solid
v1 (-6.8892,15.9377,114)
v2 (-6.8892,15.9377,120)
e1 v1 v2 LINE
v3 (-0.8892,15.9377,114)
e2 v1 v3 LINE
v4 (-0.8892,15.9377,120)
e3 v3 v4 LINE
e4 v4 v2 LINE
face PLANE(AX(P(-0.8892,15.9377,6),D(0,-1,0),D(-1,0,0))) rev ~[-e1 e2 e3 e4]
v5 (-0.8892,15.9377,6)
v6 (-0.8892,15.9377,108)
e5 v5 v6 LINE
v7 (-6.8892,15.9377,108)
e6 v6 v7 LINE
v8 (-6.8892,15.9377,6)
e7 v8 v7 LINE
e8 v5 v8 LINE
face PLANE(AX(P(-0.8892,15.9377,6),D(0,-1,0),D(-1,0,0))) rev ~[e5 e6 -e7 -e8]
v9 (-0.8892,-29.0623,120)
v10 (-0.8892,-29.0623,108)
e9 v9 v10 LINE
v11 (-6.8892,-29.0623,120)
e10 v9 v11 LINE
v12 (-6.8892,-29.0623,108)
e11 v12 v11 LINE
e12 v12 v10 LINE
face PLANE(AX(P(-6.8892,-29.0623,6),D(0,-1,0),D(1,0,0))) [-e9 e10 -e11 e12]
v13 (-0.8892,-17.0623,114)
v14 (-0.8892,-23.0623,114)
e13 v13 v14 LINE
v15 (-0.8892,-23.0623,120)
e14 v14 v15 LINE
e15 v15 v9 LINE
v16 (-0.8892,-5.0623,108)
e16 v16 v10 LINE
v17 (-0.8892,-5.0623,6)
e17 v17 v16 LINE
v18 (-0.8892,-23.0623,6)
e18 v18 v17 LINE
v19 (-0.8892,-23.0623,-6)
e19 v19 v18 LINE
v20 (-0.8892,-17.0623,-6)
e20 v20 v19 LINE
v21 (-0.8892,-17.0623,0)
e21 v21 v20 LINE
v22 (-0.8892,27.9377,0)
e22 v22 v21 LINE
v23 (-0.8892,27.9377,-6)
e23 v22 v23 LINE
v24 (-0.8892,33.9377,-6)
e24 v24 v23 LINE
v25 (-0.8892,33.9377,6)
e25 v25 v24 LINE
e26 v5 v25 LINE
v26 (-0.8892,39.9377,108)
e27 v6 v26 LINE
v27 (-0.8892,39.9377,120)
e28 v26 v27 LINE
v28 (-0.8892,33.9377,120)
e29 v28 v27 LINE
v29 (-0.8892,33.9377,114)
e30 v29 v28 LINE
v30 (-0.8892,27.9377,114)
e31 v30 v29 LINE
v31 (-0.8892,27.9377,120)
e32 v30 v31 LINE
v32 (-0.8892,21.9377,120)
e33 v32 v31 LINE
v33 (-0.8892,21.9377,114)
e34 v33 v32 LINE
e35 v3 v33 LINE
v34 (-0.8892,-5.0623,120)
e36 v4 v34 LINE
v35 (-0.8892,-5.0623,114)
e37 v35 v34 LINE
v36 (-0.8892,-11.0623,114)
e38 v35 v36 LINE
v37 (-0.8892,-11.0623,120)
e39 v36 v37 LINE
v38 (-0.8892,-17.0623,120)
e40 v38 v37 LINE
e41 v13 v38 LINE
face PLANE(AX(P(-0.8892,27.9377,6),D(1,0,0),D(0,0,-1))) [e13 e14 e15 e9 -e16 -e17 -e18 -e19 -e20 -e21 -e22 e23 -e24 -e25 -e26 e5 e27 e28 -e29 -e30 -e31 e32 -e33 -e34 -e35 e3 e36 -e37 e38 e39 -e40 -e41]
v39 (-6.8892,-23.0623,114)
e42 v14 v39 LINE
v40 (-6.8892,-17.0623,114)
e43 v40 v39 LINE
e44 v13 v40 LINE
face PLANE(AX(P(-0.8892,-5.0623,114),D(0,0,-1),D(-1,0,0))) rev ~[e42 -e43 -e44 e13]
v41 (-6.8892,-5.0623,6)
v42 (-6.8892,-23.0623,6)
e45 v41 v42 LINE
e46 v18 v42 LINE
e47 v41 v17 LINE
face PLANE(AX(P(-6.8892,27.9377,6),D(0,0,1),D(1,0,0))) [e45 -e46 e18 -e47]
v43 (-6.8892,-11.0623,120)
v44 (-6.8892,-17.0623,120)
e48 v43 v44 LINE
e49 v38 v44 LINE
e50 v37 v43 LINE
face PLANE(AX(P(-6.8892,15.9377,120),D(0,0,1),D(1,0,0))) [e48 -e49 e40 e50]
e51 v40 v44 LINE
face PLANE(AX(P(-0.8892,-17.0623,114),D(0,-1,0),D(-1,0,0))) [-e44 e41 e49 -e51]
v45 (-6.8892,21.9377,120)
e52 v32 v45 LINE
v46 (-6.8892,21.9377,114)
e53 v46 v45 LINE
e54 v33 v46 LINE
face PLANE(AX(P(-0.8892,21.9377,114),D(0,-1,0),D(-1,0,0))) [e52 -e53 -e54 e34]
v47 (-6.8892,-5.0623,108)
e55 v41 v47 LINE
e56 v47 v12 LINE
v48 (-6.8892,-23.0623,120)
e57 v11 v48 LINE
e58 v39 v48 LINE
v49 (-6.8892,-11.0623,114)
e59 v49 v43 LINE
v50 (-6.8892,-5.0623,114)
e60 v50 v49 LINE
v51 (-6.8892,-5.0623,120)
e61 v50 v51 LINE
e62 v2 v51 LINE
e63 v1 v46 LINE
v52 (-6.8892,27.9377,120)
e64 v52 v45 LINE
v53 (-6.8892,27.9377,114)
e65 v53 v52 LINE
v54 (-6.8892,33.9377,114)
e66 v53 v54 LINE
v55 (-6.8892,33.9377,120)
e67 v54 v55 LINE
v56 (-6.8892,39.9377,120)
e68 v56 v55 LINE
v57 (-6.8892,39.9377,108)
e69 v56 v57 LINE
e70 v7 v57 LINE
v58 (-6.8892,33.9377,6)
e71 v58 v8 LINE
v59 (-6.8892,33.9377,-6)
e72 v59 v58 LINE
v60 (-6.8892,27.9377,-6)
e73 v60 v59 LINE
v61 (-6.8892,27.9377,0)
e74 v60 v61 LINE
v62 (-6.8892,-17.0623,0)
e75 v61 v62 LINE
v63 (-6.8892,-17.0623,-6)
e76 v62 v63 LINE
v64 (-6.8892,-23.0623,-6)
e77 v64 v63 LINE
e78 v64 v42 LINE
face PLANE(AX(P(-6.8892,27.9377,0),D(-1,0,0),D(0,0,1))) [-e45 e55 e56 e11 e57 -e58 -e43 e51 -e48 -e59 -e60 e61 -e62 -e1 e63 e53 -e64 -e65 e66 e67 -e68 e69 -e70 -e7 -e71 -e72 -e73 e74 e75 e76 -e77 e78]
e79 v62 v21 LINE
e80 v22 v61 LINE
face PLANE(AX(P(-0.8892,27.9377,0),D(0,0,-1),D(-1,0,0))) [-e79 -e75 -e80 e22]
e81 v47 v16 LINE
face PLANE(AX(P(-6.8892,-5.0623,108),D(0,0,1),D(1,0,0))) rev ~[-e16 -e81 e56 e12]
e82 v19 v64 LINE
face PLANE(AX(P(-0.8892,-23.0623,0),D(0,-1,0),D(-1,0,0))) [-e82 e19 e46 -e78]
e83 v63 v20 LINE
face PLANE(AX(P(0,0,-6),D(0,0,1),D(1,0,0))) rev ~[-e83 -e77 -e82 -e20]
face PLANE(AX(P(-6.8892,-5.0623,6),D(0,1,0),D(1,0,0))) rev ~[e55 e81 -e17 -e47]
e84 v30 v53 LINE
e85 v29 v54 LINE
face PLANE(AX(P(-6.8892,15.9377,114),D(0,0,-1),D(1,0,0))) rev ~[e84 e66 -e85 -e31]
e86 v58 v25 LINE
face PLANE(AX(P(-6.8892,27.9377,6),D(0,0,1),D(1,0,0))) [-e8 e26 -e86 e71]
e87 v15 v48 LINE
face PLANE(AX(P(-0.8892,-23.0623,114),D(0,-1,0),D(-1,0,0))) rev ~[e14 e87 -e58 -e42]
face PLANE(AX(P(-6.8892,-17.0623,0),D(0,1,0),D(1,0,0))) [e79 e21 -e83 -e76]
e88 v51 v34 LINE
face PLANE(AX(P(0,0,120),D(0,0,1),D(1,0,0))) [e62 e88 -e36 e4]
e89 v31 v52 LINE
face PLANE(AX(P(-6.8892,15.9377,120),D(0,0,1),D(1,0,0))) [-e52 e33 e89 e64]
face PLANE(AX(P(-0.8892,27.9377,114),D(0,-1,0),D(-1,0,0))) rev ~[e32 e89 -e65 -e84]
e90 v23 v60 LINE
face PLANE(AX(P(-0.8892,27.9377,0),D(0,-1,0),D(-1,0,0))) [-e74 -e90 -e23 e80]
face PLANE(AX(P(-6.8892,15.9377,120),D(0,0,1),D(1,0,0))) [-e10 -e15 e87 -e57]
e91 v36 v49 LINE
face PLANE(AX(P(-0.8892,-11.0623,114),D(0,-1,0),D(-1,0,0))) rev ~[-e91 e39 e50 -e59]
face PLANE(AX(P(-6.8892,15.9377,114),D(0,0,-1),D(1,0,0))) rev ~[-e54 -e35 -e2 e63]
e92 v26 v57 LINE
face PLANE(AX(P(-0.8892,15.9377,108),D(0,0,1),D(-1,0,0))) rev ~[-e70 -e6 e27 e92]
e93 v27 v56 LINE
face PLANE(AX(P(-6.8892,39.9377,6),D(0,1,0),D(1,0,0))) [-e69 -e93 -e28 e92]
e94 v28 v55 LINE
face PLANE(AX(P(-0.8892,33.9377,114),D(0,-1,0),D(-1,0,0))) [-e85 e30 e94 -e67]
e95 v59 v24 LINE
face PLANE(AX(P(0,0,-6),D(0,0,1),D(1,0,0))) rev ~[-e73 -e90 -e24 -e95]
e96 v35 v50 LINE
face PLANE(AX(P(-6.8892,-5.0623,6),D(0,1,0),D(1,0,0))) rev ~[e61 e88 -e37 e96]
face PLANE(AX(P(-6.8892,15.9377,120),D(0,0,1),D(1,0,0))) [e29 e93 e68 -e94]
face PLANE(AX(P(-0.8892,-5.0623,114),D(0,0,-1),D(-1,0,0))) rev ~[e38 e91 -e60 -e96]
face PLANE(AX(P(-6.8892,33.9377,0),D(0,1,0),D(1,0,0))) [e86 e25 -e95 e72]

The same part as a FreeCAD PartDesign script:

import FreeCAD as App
import Part
import Sketcher

doc = App.newDocument("Part")
params = doc.addObject("Spreadsheet::Sheet", "Params")
for row, (alias, value) in enumerate([
    ("sketch1_width", "6 mm"),
    ("pad1_length", "12 mm"),
    ("sketch2_width", "6 mm"),
    ("sketch3_width", "6 mm"),
    ("sketch3_height", "21 mm"),
    ("pad3_length", "114 mm"),
    ("sketch4_width", "6 mm"),
    ("pad4_length", "24 mm"),
    ("sketch5_width", "6 mm"),
    ("pad5_length", "24 mm"),
    ("sketch6_width", "6 mm"),
    ("pad6_length", "6 mm"),
], start=1):
    params.set(f"A{row}", alias)
    params.set(f"B{row}", "=" + value)
    params.setAlias(f"B{row}", alias)

body = doc.addObject("PartDesign::Body", "Body")
body.AllowCompound = True

# Sketch on XY plane
sketch1 = body.newObject("Sketcher::SketchObject", "Sketch")
sketch1.AttachmentSupport = (doc.getObject("XY_Plane"), [""])
sketch1.MapMode = "FlatFace"
sketch1.addGeometry([
    Part.LineSegment(App.Vector(-0.8892, 33.9377, 0), App.Vector(-6.8892, 33.9377, 0)),  # 0
    Part.LineSegment(App.Vector(-6.8892, 33.9377, 0), App.Vector(-6.8892, 27.9377, 0)),  # 1
    Part.LineSegment(App.Vector(-6.8892, 27.9377, 0), App.Vector(-0.8892, 27.9377, 0)),  # 2
    Part.LineSegment(App.Vector(-0.8892, 27.9377, 0), App.Vector(-0.8892, 33.9377, 0)),  # 3
    Part.LineSegment(App.Vector(-6.8892, -17.0623, 0), App.Vector(-6.8892, -23.0623, 0)),  # 4
    Part.LineSegment(App.Vector(-6.8892, -23.0623, 0), App.Vector(-0.8892, -23.0623, 0)),  # 5
    Part.LineSegment(App.Vector(-0.8892, -23.0623, 0), App.Vector(-0.8892, -17.0623, 0)),  # 6
    Part.LineSegment(App.Vector(-0.8892, -17.0623, 0), App.Vector(-6.8892, -17.0623, 0)),  # 7
], False)
sketch1.addConstraint([
    Sketcher.Constraint("Coincident", 0, 2, 1, 1),
    Sketcher.Constraint("Coincident", 1, 2, 2, 1),
    Sketcher.Constraint("Coincident", 2, 2, 3, 1),
    Sketcher.Constraint("Coincident", 3, 2, 0, 1),
    Sketcher.Constraint("Coincident", 4, 2, 5, 1),
    Sketcher.Constraint("Coincident", 5, 2, 6, 1),
    Sketcher.Constraint("Coincident", 6, 2, 7, 1),
    Sketcher.Constraint("Coincident", 7, 2, 4, 1),
    Sketcher.Constraint("Horizontal", 0),
    Sketcher.Constraint("Vertical", 1),
    Sketcher.Constraint("Horizontal", 2),
    Sketcher.Constraint("Vertical", 3),
    Sketcher.Constraint("Vertical", 4),
    Sketcher.Constraint("Horizontal", 5),
    Sketcher.Constraint("Vertical", 6),
    Sketcher.Constraint("Horizontal", 7),
    Sketcher.Constraint("Vertical", 1, 2, 4, 2),
    Sketcher.Constraint("Vertical", 3, 2, 5, 2),
    Sketcher.Constraint("Equal", 7, 1),
    Sketcher.Constraint("Equal", 3, 4),
    Sketcher.Constraint("DistanceX", 0, 2, 0, 1, 6.0),
    Sketcher.Constraint("DistanceY", 4, 2, 1, 2, 51.0),
    Sketcher.Constraint("DistanceX", 0, 2, -1, 1, 6.8892),
    Sketcher.Constraint("DistanceY", -1, 1, 0, 2, 33.9377),
])
sketch1.setExpression("Constraints[20]", "Params.sketch1_width")
pad1 = body.newObject("PartDesign::Pad", "Pad")
pad1.Profile = sketch1
pad1.setExpression("Length", "Params.pad1_length")
pad1.Midplane = True

# Sketch on XZ plane
sketch2 = body.newObject("Sketcher::SketchObject", "Sketch001")
sketch2.AttachmentSupport = (doc.getObject("XZ_Plane"), [""])
sketch2.MapMode = "FlatFace"
sketch2.AttachmentOffset = App.Placement(App.Vector(0, 0, -27.9377), App.Rotation())
sketch2.addGeometry([
    Part.LineSegment(App.Vector(-0.8892, 6, 0), App.Vector(-6.8892, 6, 0)),
    Part.LineSegment(App.Vector(-6.8892, 6, 0), App.Vector(-6.8892, 0, 0)),
    Part.LineSegment(App.Vector(-6.8892, 0, 0), App.Vector(-0.8892, 0, 0)),
    Part.LineSegment(App.Vector(-0.8892, 0, 0), App.Vector(-0.8892, 6, 0)),
], False)
sketch2.addConstraint([
    Sketcher.Constraint("Coincident", 0, 2, 1, 1),
    Sketcher.Constraint("Coincident", 1, 2, 2, 1),
    Sketcher.Constraint("Coincident", 2, 2, 3, 1),
    Sketcher.Constraint("Coincident", 3, 2, 0, 1),
    Sketcher.Constraint("Horizontal", 0),
    Sketcher.Constraint("Vertical", 1),
    Sketcher.Constraint("Horizontal", 2),
    Sketcher.Constraint("Vertical", 3),
    Sketcher.Constraint("PointOnObject", 1, 2, -1),
    Sketcher.Constraint("Equal", 2, 1),
    Sketcher.Constraint("DistanceX", 0, 2, 0, 1, 6.0),
    Sketcher.Constraint("DistanceX", 0, 2, -1, 1, 6.8892),
])
sketch2.setExpression("Constraints[10]", "Params.sketch2_width")
pad2 = body.newObject("PartDesign::Pad", "Pad001")
pad2.Profile = sketch2
pad2.Type = "UpToFirst"

# Sketch on XY plane
sketch3 = body.newObject("Sketcher::SketchObject", "Sketch002")
sketch3.AttachmentSupport = (doc.getObject("XY_Plane"), [""])
sketch3.MapMode = "FlatFace"
sketch3.AttachmentOffset = App.Placement(App.Vector(0, 0, 6), App.Rotation())
sketch3.addGeometry([
    Part.LineSegment(App.Vector(-0.8892, 15.9377, 0), App.Vector(-6.8892, 15.9377, 0)),
    Part.LineSegment(App.Vector(-6.8892, 15.9377, 0), App.Vector(-6.8892, -5.0623, 0)),
    Part.LineSegment(App.Vector(-6.8892, -5.0623, 0), App.Vector(-0.8892, -5.0623, 0)),
    Part.LineSegment(App.Vector(-0.8892, -5.0623, 0), App.Vector(-0.8892, 15.9377, 0)),
], False)
sketch3.addConstraint([
    Sketcher.Constraint("Coincident", 0, 2, 1, 1),
    Sketcher.Constraint("Coincident", 1, 2, 2, 1),
    Sketcher.Constraint("Coincident", 2, 2, 3, 1),
    Sketcher.Constraint("Coincident", 3, 2, 0, 1),
    Sketcher.Constraint("Horizontal", 0),
    Sketcher.Constraint("Vertical", 1),
    Sketcher.Constraint("Horizontal", 2),
    Sketcher.Constraint("Vertical", 3),
    Sketcher.Constraint("DistanceX", 0, 2, 0, 1, 6.0),
    Sketcher.Constraint("DistanceY", 1, 2, 1, 1, 21.0),
    Sketcher.Constraint("DistanceX", 0, 2, -1, 1, 6.8892),
    Sketcher.Constraint("DistanceY", -1, 1, 0, 2, 15.9377),
])
sketch3.setExpression("Constraints[8]", "Params.sketch3_width")
sketch3.setExpression("Constraints[9]", "Params.sketch3_height")
pad3 = body.newObject("PartDesign::Pad", "Pad002")
pad3.Profile = sketch3
pad3.setExpression("Length", "Params.pad3_length")

# Sketch on XZ plane
sketch4 = body.newObject("Sketcher::SketchObject", "Sketch003")
sketch4.AttachmentSupport = (doc.getObject("XZ_Plane"), [""])
sketch4.MapMode = "FlatFace"
sketch4.AttachmentOffset = App.Placement(App.Vector(0, 0, 5.0623), App.Rotation())
sketch4.addGeometry([
    Part.LineSegment(App.Vector(-6.8892, 108, 0), App.Vector(-0.8892, 108, 0)),
    Part.LineSegment(App.Vector(-0.8892, 108, 0), App.Vector(-0.8892, 114, 0)),
    Part.LineSegment(App.Vector(-0.8892, 114, 0), App.Vector(-6.8892, 114, 0)),
    Part.LineSegment(App.Vector(-6.8892, 114, 0), App.Vector(-6.8892, 108, 0)),
], False)
sketch4.addConstraint([
    Sketcher.Constraint("Coincident", 0, 2, 1, 1),
    Sketcher.Constraint("Coincident", 1, 2, 2, 1),
    Sketcher.Constraint("Coincident", 2, 2, 3, 1),
    Sketcher.Constraint("Coincident", 3, 2, 0, 1),
    Sketcher.Constraint("Horizontal", 0),
    Sketcher.Constraint("Vertical", 1),
    Sketcher.Constraint("Horizontal", 2),
    Sketcher.Constraint("Vertical", 3),
    Sketcher.Constraint("Equal", 2, 1),
    Sketcher.Constraint("DistanceX", 0, 1, 0, 2, 6.0),
    Sketcher.Constraint("DistanceY", -1, 1, 0, 2, 108.0),
    Sketcher.Constraint("DistanceX", 0, 2, -1, 1, 0.8892),
])
sketch4.setExpression("Constraints[9]", "Params.sketch4_width")
pad4 = body.newObject("PartDesign::Pad", "Pad003")
pad4.Profile = sketch4
pad4.setExpression("Length", "Params.pad4_length")

# Sketch on XZ plane
sketch5 = body.newObject("Sketcher::SketchObject", "Sketch004")
sketch5.AttachmentSupport = (doc.getObject("XZ_Plane"), [""])
sketch5.MapMode = "FlatFace"
sketch5.AttachmentOffset = App.Placement(App.Vector(0, 0, -15.9377), App.Rotation())
sketch5.addGeometry([
    Part.LineSegment(App.Vector(-0.8892, 108, 0), App.Vector(-6.8892, 108, 0)),
    Part.LineSegment(App.Vector(-6.8892, 108, 0), App.Vector(-6.8892, 114, 0)),
    Part.LineSegment(App.Vector(-6.8892, 114, 0), App.Vector(-0.8892, 114, 0)),
    Part.LineSegment(App.Vector(-0.8892, 114, 0), App.Vector(-0.8892, 108, 0)),
], False)
sketch5.addConstraint([
    Sketcher.Constraint("Coincident", 0, 2, 1, 1),
    Sketcher.Constraint("Coincident", 1, 2, 2, 1),
    Sketcher.Constraint("Coincident", 2, 2, 3, 1),
    Sketcher.Constraint("Coincident", 3, 2, 0, 1),
    Sketcher.Constraint("Horizontal", 0),
    Sketcher.Constraint("Vertical", 1),
    Sketcher.Constraint("Horizontal", 2),
    Sketcher.Constraint("Vertical", 3),
    Sketcher.Constraint("Equal", 2, 1),
    Sketcher.Constraint("DistanceX", 0, 2, 0, 1, 6.0),
    Sketcher.Constraint("DistanceY", -1, 1, 0, 2, 108.0),
    Sketcher.Constraint("DistanceX", 0, 2, -1, 1, 6.8892),
])
sketch5.setExpression("Constraints[9]", "Params.sketch5_width")
pad5 = body.newObject("PartDesign::Pad", "Pad004")
pad5.Profile = sketch5
pad5.setExpression("Length", "Params.pad5_length")
pad5.Reversed = True

# Sketch on XY plane
sketch6 = body.newObject("Sketcher::SketchObject", "Sketch005")
sketch6.AttachmentSupport = (doc.getObject("XY_Plane"), [""])
sketch6.MapMode = "FlatFace"
sketch6.AttachmentOffset = App.Placement(App.Vector(0, 0, 114), App.Rotation())
sketch6.addGeometry([
    Part.LineSegment(App.Vector(-0.8892, -11.0623, 0), App.Vector(-6.8892, -11.0623, 0)),  # 0
    Part.LineSegment(App.Vector(-6.8892, -11.0623, 0), App.Vector(-6.8892, -17.0623, 0)),  # 1
    Part.LineSegment(App.Vector(-6.8892, -17.0623, 0), App.Vector(-0.8892, -17.0623, 0)),  # 2
    Part.LineSegment(App.Vector(-0.8892, -17.0623, 0), App.Vector(-0.8892, -11.0623, 0)),  # 3
    Part.LineSegment(App.Vector(-0.8892, -23.0623, 0), App.Vector(-6.8892, -23.0623, 0)),  # 4
    Part.LineSegment(App.Vector(-6.8892, -23.0623, 0), App.Vector(-6.8892, -29.0623, 0)),  # 5
    Part.LineSegment(App.Vector(-6.8892, -29.0623, 0), App.Vector(-0.8892, -29.0623, 0)),  # 6
    Part.LineSegment(App.Vector(-0.8892, -29.0623, 0), App.Vector(-0.8892, -23.0623, 0)),  # 7
    Part.LineSegment(App.Vector(-6.8892, 39.9377, 0), App.Vector(-6.8892, 33.9377, 0)),  # 8
    Part.LineSegment(App.Vector(-6.8892, 33.9377, 0), App.Vector(-0.8892, 33.9377, 0)),  # 9
    Part.LineSegment(App.Vector(-0.8892, 33.9377, 0), App.Vector(-0.8892, 39.9377, 0)),  # 10
    Part.LineSegment(App.Vector(-0.8892, 39.9377, 0), App.Vector(-6.8892, 39.9377, 0)),  # 11
    Part.LineSegment(App.Vector(-0.8892, 27.9377, 0), App.Vector(-6.8892, 27.9377, 0)),  # 12
    Part.LineSegment(App.Vector(-6.8892, 27.9377, 0), App.Vector(-6.8892, 21.9377, 0)),  # 13
    Part.LineSegment(App.Vector(-6.8892, 21.9377, 0), App.Vector(-0.8892, 21.9377, 0)),  # 14
    Part.LineSegment(App.Vector(-0.8892, 21.9377, 0), App.Vector(-0.8892, 27.9377, 0)),  # 15
], False)
sketch6.addConstraint([
    Sketcher.Constraint("Coincident", 0, 2, 1, 1),
    Sketcher.Constraint("Coincident", 1, 2, 2, 1),
    Sketcher.Constraint("Coincident", 2, 2, 3, 1),
    Sketcher.Constraint("Coincident", 3, 2, 0, 1),
    Sketcher.Constraint("Coincident", 4, 2, 5, 1),
    Sketcher.Constraint("Coincident", 5, 2, 6, 1),
    Sketcher.Constraint("Coincident", 6, 2, 7, 1),
    Sketcher.Constraint("Coincident", 7, 2, 4, 1),
    Sketcher.Constraint("Coincident", 8, 2, 9, 1),
    Sketcher.Constraint("Coincident", 9, 2, 10, 1),
    Sketcher.Constraint("Coincident", 10, 2, 11, 1),
    Sketcher.Constraint("Coincident", 11, 2, 8, 1),
    Sketcher.Constraint("Coincident", 12, 2, 13, 1),
    Sketcher.Constraint("Coincident", 13, 2, 14, 1),
    Sketcher.Constraint("Coincident", 14, 2, 15, 1),
    Sketcher.Constraint("Coincident", 15, 2, 12, 1),
    Sketcher.Constraint("Horizontal", 0),
    Sketcher.Constraint("Vertical", 1),
    Sketcher.Constraint("Horizontal", 2),
    Sketcher.Constraint("Vertical", 3),
    Sketcher.Constraint("Horizontal", 4),
    Sketcher.Constraint("Vertical", 5),
    Sketcher.Constraint("Horizontal", 6),
    Sketcher.Constraint("Vertical", 7),
    Sketcher.Constraint("Vertical", 8),
    Sketcher.Constraint("Horizontal", 9),
    Sketcher.Constraint("Vertical", 10),
    Sketcher.Constraint("Horizontal", 11),
    Sketcher.Constraint("Horizontal", 12),
    Sketcher.Constraint("Vertical", 13),
    Sketcher.Constraint("Horizontal", 14),
    Sketcher.Constraint("Vertical", 15),
    Sketcher.Constraint("Vertical", 1, 2, 4, 2),
    Sketcher.Constraint("Vertical", 3, 2, 6, 2),
    Sketcher.Constraint("Vertical", 5, 2, 8, 2),
    Sketcher.Constraint("Vertical", 7, 2, 9, 2),
    Sketcher.Constraint("Vertical", 11, 2, 12, 2),
    Sketcher.Constraint("Vertical", 10, 2, 14, 2),
    Sketcher.Constraint("Equal", 14, 1),
    Sketcher.Constraint("Equal", 3, 5),
    Sketcher.Constraint("Equal", 7, 8),
    Sketcher.Constraint("Equal", 10, 13),
    Sketcher.Constraint("DistanceX", 0, 2, 0, 1, 6.0),
    Sketcher.Constraint("DistanceY", 4, 2, 1, 2, 6.0),
    Sketcher.Constraint("DistanceY", 12, 2, 8, 2, 6.0),
    Sketcher.Constraint("DistanceY", 0, 2, 8, 2, 45.0),
    Sketcher.Constraint("DistanceX", 0, 2, -1, 1, 6.8892),
    Sketcher.Constraint("DistanceY", 0, 2, -1, 1, 11.0623),
])
sketch6.setExpression("Constraints[42]", "Params.sketch6_width")
pad6 = body.newObject("PartDesign::Pad", "Pad005")
pad6.Profile = sketch6
pad6.setExpression("Length", "Params.pad6_length")

doc.recompute()
